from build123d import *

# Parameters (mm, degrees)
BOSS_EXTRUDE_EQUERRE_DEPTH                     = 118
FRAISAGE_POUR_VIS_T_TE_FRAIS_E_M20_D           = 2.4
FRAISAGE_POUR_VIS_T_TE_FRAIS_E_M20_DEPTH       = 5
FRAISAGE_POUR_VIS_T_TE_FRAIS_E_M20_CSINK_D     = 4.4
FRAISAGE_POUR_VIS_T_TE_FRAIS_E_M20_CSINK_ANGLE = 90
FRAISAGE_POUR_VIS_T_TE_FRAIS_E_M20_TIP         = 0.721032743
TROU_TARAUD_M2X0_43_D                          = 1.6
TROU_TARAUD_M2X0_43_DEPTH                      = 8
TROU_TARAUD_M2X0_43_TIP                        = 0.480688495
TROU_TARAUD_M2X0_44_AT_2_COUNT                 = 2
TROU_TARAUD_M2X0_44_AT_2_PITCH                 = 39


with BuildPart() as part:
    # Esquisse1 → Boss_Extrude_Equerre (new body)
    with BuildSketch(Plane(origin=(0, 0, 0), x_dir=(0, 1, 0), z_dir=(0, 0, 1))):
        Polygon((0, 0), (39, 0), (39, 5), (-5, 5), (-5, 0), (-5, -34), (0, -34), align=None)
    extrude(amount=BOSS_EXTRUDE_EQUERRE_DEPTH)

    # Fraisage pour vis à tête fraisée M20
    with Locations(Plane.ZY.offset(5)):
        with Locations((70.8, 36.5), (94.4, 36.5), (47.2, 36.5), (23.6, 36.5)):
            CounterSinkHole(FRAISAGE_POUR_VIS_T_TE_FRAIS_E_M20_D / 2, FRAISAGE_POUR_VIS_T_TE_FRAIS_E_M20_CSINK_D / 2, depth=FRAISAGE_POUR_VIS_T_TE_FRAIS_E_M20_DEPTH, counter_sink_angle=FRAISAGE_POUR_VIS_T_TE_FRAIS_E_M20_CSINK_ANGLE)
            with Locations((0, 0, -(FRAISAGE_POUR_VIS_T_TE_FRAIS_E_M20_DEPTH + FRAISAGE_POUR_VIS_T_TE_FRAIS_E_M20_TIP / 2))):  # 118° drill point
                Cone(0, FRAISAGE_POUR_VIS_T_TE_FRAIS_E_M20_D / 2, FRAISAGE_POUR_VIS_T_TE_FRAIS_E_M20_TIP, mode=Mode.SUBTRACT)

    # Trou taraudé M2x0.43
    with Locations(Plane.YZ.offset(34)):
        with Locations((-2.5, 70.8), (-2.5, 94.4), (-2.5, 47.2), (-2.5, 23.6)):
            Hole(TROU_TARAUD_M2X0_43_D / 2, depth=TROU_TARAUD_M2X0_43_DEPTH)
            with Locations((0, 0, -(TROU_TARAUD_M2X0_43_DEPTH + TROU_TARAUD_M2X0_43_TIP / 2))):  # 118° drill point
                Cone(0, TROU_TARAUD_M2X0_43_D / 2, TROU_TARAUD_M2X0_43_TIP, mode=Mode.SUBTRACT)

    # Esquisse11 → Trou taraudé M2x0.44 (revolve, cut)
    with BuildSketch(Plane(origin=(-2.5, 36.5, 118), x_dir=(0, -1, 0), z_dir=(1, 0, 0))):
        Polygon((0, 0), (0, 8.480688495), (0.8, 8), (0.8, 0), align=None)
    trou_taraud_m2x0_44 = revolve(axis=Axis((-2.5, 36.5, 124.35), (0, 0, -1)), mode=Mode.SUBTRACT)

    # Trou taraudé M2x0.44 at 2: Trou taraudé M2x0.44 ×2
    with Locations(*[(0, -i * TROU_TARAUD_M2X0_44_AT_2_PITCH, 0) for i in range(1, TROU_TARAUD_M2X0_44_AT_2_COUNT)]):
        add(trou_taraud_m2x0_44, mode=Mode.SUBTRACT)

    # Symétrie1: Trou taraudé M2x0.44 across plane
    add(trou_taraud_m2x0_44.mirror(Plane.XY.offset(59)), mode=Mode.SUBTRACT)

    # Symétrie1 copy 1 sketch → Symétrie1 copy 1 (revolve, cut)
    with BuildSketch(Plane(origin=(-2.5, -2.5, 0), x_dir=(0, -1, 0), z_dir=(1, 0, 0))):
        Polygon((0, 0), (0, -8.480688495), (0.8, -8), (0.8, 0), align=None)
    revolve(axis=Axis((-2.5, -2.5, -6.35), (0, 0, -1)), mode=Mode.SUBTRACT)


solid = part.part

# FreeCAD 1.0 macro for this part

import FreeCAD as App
import Part
import Sketcher
from FreeCAD import Vector
Q = App.Units.Quantity


def add_polygon(sketch, points):
    """Adds a closed chain of lines whose ends are joined by coincident constraints."""
    first, n = sketch.GeometryCount, len(points)
    for a, b in zip(points, points[1:] + points[:1]):
        sketch.addGeometry(Part.LineSegment(App.Vector(*a, 0), App.Vector(*b, 0)), False)
    for i in range(n):
        sketch.addConstraint(Sketcher.Constraint("Coincident", first + i, 2, first + (i + 1) % n, 1))

doc = App.newDocument("Part")
body = doc.addObject("PartDesign::Body", "Body")

sketch1 = doc.addObject("Sketcher::SketchObject", "Sketch")
body.addObject(sketch1)
sketch1.AttachmentSupport = (doc.XY_Plane, [""])
sketch1.MapMode = "FlatFace"
add_polygon(sketch1, [(0, 0), (0, 39), (-5, 39), (-5, -5), (34, -5), (34, 0)])
sketch1.addConstraint([
    Sketcher.Constraint("Vertical", 0),
    Sketcher.Constraint("Horizontal", 1),
    Sketcher.Constraint("Vertical", 2),
    Sketcher.Constraint("Horizontal", 3),
    Sketcher.Constraint("Vertical", 4),
    Sketcher.Constraint("Horizontal", 5),
    Sketcher.Constraint("Coincident", 5, 2, -1, 1),
    Sketcher.Constraint("Equal", 3, 0),
    Sketcher.Constraint("Equal", 1, 4),
    Sketcher.Constraint("DistanceX", 1, 2, 1, 1, 5.0),
    Sketcher.Constraint("DistanceX", 3, 1, 3, 2, 39.0),
])
pad1 = doc.addObject("PartDesign::Pad", "Pad")
body.addObject(pad1)
pad1.Profile = sketch1
pad1.Length = 118

sketch2 = doc.addObject("Sketcher::SketchObject", "Sketch001")
body.addObject(sketch2)
sketch2.AttachmentSupport = (doc.YZ_Plane, [""])
sketch2.MapMode = "FlatFace"
sketch2.AttachmentOffset = App.Placement(Vector(0, 0, -5), App.Rotation())
sketch2.addGeometry([
    Part.Circle(Vector(36.5, 70.8, 0), Vector(0, 0, 1), 1.2),
    Part.Circle(Vector(36.5, 94.4, 0), Vector(0, 0, 1), 1.2),
    Part.Circle(Vector(36.5, 47.2, 0), Vector(0, 0, 1), 1.2),
    Part.Circle(Vector(36.5, 23.6, 0), Vector(0, 0, 1), 1.2),
], False)
sketch2.addConstraint([
    Sketcher.Constraint("Equal", 0, 1),
    Sketcher.Constraint("Equal", 1, 2),
    Sketcher.Constraint("Equal", 2, 3),
    Sketcher.Constraint("Vertical", 0, 3, 1, 3),
    Sketcher.Constraint("Vertical", 1, 3, 2, 3),
    Sketcher.Constraint("Vertical", 2, 3, 3, 3),
    Sketcher.Constraint("Diameter", 0, 2.4),
    Sketcher.Constraint("DistanceX", -1, 1, 0, 3, 36.5),
    Sketcher.Constraint("DistanceY", -1, 1, 0, 3, 70.8),
    Sketcher.Constraint("DistanceY", -1, 1, 1, 3, 94.4),
    Sketcher.Constraint("DistanceY", -1, 1, 2, 3, 47.2),
    Sketcher.Constraint("DistanceY", -1, 1, 3, 3, 23.6),
])
doc.recompute()
hole = doc.addObject("PartDesign::Hole", "Hole")
body.addObject(hole)
hole.Profile = sketch2
hole.ThreadType = "None"
hole.Diameter = 2.4
hole.DepthType = "Dimension"
hole.Depth = 5
hole.DrillPoint = "Angled"
hole.DrillPointAngle = 118
hole.HoleCutType = "Countersink"
hole.HoleCutDiameter = 4.4
hole.HoleCutCountersinkAngle = 90
hole.Reversed = True

sketch3 = doc.addObject("Sketcher::SketchObject", "Sketch002")
body.addObject(sketch3)
sketch3.AttachmentSupport = (doc.YZ_Plane, [""])
sketch3.MapMode = "FlatFace"
sketch3.AttachmentOffset = App.Placement(Vector(0, 0, 34), App.Rotation())
sketch3.addGeometry([
    Part.Circle(Vector(-2.5, 70.8, 0), Vector(0, 0, 1), 0.8),
    Part.Circle(Vector(-2.5, 94.4, 0), Vector(0, 0, 1), 0.8),
    Part.Circle(Vector(-2.5, 47.2, 0), Vector(0, 0, 1), 0.8),
    Part.Circle(Vector(-2.5, 23.6, 0), Vector(0, 0, 1), 0.8),
], False)
sketch3.addConstraint([
    Sketcher.Constraint("Equal", 0, 1),
    Sketcher.Constraint("Equal", 1, 2),
    Sketcher.Constraint("Equal", 2, 3),
    Sketcher.Constraint("Vertical", 0, 3, 1, 3),
    Sketcher.Constraint("Vertical", 1, 3, 2, 3),
    Sketcher.Constraint("Vertical", 2, 3, 3, 3),
    Sketcher.Constraint("Diameter", 0, 1.6),
    Sketcher.Constraint("DistanceX", 0, 3, -1, 1, 2.5),
    Sketcher.Constraint("DistanceY", -1, 1, 0, 3, 70.8),
    Sketcher.Constraint("DistanceY", -1, 1, 1, 3, 94.4),
    Sketcher.Constraint("DistanceY", -1, 1, 2, 3, 47.2),
    Sketcher.Constraint("DistanceY", -1, 1, 3, 3, 23.6),
])
doc.recompute()
hole2 = doc.addObject("PartDesign::Hole", "Hole001")
body.addObject(hole2)
hole2.Profile = sketch3
hole2.ThreadType = "None"
hole2.Diameter = 1.6
hole2.DepthType = "Dimension"
hole2.Depth = 8
hole2.DrillPoint = "Angled"
hole2.DrillPointAngle = 118

sketch4 = doc.addObject("Sketcher::SketchObject", "Sketch003")
body.addObject(sketch4)
sketch4.AttachmentSupport = (doc.YZ_Plane, [""])
sketch4.MapMode = "FlatFace"
sketch4.AttachmentOffset = App.Placement(Vector(0, 0, -2.5), App.Rotation())
add_polygon(sketch4, [(36.5, 109.519312), (36.5, 118), (35.7, 118), (35.7, 110)])
sketch4.addGeometry(Part.LineSegment(Vector(36.5, 118, 0), Vector(36.5, 109.519312, 0)), True)
sketch4.addConstraint([
    Sketcher.Constraint("Vertical", 0),
    Sketcher.Constraint("Horizontal", 1),
    Sketcher.Constraint("Vertical", 2),
    Sketcher.Constraint("Vertical", 4),
    Sketcher.Constraint("Coincident", 4, 1, 0, 2),
    Sketcher.Constraint("Equal", 0, 4),
    Sketcher.Constraint("DistanceY", 2, 2, 2, 1, 8.0),
    Sketcher.Constraint("Angle", 3, Q("-31 deg")),
    Sketcher.Constraint("DistanceX", 1, 2, 1, 1, 0.8),
    Sketcher.Constraint("DistanceY", -1, 1, 0, 2, 118.0),
    Sketcher.Constraint("DistanceX", -1, 1, 0, 2, 36.5),
])
groove = doc.addObject("PartDesign::Groove", "Groove")
body.addObject(groove)
groove.Profile = sketch4
groove.ReferenceAxis = (sketch4, ["Axis0"])
groove.Angle = 360
doc.recompute()

linearpattern = doc.addObject("PartDesign::LinearPattern", "LinearPattern")
body.addObject(linearpattern)
linearpattern.Originals = [groove]
linearpattern.Direction = (doc.Y_Axis, [""])
linearpattern.Mode = "offset"
linearpattern.Offset = 39
linearpattern.Occurrences = 2
linearpattern.Reversed = True
body.Tip = linearpattern
doc.recompute()

datumplane = doc.addObject("PartDesign::Plane", "DatumPlane")
body.addObject(datumplane)
datumplane.AttachmentSupport = (doc.XY_Plane, [""])
datumplane.MapMode = "FlatFace"
datumplane.AttachmentOffset = App.Placement(Vector(0, 0, 59), App.Rotation())
mirrored = doc.addObject("PartDesign::Mirrored", "Mirrored")
body.addObject(mirrored)
mirrored.Originals = [groove]
mirrored.MirrorPlane = (datumplane, [""])
body.Tip = mirrored

sketch5 = doc.addObject("Sketcher::SketchObject", "Sketch004")
body.addObject(sketch5)
sketch5.AttachmentSupport = (doc.YZ_Plane, [""])
sketch5.MapMode = "FlatFace"
sketch5.AttachmentOffset = App.Placement(Vector(0, 0, -2.5), App.Rotation())
add_polygon(sketch5, [(-2.5, 0), (-2.5, 8.480688), (-3.3, 8), (-3.3, 0)])
sketch5.addGeometry(Part.LineSegment(Vector(-2.5, 8.480688, 0), Vector(-2.5, 0, 0)), True)
sketch5.addConstraint([
    Sketcher.Constraint("Vertical", 0),
    Sketcher.Constraint("Vertical", 2),
    Sketcher.Constraint("Horizontal", 3),
    Sketcher.Constraint("Vertical", 4),
    Sketcher.Constraint("Coincident", 4, 1, 0, 2),
    Sketcher.Constraint("PointOnObject", 2, 2, -1),
    Sketcher.Constraint("PointOnObject", 4, 2, -1),
    Sketcher.Constraint("DistanceY", 2, 2, 2, 1, 8.0),
    Sketcher.Constraint("Angle", 1, Q("-149 deg")),
    Sketcher.Constraint("DistanceX", 3, 1, 3, 2, 0.8),
    Sketcher.Constraint("DistanceX", 0, 2, -1, 1, 2.5),
])
groove2 = doc.addObject("PartDesign::Groove", "Groove001")
body.addObject(groove2)
groove2.Profile = sketch5
groove2.ReferenceAxis = (sketch5, ["Axis0"])
groove2.Angle = 360

doc.recompute()
